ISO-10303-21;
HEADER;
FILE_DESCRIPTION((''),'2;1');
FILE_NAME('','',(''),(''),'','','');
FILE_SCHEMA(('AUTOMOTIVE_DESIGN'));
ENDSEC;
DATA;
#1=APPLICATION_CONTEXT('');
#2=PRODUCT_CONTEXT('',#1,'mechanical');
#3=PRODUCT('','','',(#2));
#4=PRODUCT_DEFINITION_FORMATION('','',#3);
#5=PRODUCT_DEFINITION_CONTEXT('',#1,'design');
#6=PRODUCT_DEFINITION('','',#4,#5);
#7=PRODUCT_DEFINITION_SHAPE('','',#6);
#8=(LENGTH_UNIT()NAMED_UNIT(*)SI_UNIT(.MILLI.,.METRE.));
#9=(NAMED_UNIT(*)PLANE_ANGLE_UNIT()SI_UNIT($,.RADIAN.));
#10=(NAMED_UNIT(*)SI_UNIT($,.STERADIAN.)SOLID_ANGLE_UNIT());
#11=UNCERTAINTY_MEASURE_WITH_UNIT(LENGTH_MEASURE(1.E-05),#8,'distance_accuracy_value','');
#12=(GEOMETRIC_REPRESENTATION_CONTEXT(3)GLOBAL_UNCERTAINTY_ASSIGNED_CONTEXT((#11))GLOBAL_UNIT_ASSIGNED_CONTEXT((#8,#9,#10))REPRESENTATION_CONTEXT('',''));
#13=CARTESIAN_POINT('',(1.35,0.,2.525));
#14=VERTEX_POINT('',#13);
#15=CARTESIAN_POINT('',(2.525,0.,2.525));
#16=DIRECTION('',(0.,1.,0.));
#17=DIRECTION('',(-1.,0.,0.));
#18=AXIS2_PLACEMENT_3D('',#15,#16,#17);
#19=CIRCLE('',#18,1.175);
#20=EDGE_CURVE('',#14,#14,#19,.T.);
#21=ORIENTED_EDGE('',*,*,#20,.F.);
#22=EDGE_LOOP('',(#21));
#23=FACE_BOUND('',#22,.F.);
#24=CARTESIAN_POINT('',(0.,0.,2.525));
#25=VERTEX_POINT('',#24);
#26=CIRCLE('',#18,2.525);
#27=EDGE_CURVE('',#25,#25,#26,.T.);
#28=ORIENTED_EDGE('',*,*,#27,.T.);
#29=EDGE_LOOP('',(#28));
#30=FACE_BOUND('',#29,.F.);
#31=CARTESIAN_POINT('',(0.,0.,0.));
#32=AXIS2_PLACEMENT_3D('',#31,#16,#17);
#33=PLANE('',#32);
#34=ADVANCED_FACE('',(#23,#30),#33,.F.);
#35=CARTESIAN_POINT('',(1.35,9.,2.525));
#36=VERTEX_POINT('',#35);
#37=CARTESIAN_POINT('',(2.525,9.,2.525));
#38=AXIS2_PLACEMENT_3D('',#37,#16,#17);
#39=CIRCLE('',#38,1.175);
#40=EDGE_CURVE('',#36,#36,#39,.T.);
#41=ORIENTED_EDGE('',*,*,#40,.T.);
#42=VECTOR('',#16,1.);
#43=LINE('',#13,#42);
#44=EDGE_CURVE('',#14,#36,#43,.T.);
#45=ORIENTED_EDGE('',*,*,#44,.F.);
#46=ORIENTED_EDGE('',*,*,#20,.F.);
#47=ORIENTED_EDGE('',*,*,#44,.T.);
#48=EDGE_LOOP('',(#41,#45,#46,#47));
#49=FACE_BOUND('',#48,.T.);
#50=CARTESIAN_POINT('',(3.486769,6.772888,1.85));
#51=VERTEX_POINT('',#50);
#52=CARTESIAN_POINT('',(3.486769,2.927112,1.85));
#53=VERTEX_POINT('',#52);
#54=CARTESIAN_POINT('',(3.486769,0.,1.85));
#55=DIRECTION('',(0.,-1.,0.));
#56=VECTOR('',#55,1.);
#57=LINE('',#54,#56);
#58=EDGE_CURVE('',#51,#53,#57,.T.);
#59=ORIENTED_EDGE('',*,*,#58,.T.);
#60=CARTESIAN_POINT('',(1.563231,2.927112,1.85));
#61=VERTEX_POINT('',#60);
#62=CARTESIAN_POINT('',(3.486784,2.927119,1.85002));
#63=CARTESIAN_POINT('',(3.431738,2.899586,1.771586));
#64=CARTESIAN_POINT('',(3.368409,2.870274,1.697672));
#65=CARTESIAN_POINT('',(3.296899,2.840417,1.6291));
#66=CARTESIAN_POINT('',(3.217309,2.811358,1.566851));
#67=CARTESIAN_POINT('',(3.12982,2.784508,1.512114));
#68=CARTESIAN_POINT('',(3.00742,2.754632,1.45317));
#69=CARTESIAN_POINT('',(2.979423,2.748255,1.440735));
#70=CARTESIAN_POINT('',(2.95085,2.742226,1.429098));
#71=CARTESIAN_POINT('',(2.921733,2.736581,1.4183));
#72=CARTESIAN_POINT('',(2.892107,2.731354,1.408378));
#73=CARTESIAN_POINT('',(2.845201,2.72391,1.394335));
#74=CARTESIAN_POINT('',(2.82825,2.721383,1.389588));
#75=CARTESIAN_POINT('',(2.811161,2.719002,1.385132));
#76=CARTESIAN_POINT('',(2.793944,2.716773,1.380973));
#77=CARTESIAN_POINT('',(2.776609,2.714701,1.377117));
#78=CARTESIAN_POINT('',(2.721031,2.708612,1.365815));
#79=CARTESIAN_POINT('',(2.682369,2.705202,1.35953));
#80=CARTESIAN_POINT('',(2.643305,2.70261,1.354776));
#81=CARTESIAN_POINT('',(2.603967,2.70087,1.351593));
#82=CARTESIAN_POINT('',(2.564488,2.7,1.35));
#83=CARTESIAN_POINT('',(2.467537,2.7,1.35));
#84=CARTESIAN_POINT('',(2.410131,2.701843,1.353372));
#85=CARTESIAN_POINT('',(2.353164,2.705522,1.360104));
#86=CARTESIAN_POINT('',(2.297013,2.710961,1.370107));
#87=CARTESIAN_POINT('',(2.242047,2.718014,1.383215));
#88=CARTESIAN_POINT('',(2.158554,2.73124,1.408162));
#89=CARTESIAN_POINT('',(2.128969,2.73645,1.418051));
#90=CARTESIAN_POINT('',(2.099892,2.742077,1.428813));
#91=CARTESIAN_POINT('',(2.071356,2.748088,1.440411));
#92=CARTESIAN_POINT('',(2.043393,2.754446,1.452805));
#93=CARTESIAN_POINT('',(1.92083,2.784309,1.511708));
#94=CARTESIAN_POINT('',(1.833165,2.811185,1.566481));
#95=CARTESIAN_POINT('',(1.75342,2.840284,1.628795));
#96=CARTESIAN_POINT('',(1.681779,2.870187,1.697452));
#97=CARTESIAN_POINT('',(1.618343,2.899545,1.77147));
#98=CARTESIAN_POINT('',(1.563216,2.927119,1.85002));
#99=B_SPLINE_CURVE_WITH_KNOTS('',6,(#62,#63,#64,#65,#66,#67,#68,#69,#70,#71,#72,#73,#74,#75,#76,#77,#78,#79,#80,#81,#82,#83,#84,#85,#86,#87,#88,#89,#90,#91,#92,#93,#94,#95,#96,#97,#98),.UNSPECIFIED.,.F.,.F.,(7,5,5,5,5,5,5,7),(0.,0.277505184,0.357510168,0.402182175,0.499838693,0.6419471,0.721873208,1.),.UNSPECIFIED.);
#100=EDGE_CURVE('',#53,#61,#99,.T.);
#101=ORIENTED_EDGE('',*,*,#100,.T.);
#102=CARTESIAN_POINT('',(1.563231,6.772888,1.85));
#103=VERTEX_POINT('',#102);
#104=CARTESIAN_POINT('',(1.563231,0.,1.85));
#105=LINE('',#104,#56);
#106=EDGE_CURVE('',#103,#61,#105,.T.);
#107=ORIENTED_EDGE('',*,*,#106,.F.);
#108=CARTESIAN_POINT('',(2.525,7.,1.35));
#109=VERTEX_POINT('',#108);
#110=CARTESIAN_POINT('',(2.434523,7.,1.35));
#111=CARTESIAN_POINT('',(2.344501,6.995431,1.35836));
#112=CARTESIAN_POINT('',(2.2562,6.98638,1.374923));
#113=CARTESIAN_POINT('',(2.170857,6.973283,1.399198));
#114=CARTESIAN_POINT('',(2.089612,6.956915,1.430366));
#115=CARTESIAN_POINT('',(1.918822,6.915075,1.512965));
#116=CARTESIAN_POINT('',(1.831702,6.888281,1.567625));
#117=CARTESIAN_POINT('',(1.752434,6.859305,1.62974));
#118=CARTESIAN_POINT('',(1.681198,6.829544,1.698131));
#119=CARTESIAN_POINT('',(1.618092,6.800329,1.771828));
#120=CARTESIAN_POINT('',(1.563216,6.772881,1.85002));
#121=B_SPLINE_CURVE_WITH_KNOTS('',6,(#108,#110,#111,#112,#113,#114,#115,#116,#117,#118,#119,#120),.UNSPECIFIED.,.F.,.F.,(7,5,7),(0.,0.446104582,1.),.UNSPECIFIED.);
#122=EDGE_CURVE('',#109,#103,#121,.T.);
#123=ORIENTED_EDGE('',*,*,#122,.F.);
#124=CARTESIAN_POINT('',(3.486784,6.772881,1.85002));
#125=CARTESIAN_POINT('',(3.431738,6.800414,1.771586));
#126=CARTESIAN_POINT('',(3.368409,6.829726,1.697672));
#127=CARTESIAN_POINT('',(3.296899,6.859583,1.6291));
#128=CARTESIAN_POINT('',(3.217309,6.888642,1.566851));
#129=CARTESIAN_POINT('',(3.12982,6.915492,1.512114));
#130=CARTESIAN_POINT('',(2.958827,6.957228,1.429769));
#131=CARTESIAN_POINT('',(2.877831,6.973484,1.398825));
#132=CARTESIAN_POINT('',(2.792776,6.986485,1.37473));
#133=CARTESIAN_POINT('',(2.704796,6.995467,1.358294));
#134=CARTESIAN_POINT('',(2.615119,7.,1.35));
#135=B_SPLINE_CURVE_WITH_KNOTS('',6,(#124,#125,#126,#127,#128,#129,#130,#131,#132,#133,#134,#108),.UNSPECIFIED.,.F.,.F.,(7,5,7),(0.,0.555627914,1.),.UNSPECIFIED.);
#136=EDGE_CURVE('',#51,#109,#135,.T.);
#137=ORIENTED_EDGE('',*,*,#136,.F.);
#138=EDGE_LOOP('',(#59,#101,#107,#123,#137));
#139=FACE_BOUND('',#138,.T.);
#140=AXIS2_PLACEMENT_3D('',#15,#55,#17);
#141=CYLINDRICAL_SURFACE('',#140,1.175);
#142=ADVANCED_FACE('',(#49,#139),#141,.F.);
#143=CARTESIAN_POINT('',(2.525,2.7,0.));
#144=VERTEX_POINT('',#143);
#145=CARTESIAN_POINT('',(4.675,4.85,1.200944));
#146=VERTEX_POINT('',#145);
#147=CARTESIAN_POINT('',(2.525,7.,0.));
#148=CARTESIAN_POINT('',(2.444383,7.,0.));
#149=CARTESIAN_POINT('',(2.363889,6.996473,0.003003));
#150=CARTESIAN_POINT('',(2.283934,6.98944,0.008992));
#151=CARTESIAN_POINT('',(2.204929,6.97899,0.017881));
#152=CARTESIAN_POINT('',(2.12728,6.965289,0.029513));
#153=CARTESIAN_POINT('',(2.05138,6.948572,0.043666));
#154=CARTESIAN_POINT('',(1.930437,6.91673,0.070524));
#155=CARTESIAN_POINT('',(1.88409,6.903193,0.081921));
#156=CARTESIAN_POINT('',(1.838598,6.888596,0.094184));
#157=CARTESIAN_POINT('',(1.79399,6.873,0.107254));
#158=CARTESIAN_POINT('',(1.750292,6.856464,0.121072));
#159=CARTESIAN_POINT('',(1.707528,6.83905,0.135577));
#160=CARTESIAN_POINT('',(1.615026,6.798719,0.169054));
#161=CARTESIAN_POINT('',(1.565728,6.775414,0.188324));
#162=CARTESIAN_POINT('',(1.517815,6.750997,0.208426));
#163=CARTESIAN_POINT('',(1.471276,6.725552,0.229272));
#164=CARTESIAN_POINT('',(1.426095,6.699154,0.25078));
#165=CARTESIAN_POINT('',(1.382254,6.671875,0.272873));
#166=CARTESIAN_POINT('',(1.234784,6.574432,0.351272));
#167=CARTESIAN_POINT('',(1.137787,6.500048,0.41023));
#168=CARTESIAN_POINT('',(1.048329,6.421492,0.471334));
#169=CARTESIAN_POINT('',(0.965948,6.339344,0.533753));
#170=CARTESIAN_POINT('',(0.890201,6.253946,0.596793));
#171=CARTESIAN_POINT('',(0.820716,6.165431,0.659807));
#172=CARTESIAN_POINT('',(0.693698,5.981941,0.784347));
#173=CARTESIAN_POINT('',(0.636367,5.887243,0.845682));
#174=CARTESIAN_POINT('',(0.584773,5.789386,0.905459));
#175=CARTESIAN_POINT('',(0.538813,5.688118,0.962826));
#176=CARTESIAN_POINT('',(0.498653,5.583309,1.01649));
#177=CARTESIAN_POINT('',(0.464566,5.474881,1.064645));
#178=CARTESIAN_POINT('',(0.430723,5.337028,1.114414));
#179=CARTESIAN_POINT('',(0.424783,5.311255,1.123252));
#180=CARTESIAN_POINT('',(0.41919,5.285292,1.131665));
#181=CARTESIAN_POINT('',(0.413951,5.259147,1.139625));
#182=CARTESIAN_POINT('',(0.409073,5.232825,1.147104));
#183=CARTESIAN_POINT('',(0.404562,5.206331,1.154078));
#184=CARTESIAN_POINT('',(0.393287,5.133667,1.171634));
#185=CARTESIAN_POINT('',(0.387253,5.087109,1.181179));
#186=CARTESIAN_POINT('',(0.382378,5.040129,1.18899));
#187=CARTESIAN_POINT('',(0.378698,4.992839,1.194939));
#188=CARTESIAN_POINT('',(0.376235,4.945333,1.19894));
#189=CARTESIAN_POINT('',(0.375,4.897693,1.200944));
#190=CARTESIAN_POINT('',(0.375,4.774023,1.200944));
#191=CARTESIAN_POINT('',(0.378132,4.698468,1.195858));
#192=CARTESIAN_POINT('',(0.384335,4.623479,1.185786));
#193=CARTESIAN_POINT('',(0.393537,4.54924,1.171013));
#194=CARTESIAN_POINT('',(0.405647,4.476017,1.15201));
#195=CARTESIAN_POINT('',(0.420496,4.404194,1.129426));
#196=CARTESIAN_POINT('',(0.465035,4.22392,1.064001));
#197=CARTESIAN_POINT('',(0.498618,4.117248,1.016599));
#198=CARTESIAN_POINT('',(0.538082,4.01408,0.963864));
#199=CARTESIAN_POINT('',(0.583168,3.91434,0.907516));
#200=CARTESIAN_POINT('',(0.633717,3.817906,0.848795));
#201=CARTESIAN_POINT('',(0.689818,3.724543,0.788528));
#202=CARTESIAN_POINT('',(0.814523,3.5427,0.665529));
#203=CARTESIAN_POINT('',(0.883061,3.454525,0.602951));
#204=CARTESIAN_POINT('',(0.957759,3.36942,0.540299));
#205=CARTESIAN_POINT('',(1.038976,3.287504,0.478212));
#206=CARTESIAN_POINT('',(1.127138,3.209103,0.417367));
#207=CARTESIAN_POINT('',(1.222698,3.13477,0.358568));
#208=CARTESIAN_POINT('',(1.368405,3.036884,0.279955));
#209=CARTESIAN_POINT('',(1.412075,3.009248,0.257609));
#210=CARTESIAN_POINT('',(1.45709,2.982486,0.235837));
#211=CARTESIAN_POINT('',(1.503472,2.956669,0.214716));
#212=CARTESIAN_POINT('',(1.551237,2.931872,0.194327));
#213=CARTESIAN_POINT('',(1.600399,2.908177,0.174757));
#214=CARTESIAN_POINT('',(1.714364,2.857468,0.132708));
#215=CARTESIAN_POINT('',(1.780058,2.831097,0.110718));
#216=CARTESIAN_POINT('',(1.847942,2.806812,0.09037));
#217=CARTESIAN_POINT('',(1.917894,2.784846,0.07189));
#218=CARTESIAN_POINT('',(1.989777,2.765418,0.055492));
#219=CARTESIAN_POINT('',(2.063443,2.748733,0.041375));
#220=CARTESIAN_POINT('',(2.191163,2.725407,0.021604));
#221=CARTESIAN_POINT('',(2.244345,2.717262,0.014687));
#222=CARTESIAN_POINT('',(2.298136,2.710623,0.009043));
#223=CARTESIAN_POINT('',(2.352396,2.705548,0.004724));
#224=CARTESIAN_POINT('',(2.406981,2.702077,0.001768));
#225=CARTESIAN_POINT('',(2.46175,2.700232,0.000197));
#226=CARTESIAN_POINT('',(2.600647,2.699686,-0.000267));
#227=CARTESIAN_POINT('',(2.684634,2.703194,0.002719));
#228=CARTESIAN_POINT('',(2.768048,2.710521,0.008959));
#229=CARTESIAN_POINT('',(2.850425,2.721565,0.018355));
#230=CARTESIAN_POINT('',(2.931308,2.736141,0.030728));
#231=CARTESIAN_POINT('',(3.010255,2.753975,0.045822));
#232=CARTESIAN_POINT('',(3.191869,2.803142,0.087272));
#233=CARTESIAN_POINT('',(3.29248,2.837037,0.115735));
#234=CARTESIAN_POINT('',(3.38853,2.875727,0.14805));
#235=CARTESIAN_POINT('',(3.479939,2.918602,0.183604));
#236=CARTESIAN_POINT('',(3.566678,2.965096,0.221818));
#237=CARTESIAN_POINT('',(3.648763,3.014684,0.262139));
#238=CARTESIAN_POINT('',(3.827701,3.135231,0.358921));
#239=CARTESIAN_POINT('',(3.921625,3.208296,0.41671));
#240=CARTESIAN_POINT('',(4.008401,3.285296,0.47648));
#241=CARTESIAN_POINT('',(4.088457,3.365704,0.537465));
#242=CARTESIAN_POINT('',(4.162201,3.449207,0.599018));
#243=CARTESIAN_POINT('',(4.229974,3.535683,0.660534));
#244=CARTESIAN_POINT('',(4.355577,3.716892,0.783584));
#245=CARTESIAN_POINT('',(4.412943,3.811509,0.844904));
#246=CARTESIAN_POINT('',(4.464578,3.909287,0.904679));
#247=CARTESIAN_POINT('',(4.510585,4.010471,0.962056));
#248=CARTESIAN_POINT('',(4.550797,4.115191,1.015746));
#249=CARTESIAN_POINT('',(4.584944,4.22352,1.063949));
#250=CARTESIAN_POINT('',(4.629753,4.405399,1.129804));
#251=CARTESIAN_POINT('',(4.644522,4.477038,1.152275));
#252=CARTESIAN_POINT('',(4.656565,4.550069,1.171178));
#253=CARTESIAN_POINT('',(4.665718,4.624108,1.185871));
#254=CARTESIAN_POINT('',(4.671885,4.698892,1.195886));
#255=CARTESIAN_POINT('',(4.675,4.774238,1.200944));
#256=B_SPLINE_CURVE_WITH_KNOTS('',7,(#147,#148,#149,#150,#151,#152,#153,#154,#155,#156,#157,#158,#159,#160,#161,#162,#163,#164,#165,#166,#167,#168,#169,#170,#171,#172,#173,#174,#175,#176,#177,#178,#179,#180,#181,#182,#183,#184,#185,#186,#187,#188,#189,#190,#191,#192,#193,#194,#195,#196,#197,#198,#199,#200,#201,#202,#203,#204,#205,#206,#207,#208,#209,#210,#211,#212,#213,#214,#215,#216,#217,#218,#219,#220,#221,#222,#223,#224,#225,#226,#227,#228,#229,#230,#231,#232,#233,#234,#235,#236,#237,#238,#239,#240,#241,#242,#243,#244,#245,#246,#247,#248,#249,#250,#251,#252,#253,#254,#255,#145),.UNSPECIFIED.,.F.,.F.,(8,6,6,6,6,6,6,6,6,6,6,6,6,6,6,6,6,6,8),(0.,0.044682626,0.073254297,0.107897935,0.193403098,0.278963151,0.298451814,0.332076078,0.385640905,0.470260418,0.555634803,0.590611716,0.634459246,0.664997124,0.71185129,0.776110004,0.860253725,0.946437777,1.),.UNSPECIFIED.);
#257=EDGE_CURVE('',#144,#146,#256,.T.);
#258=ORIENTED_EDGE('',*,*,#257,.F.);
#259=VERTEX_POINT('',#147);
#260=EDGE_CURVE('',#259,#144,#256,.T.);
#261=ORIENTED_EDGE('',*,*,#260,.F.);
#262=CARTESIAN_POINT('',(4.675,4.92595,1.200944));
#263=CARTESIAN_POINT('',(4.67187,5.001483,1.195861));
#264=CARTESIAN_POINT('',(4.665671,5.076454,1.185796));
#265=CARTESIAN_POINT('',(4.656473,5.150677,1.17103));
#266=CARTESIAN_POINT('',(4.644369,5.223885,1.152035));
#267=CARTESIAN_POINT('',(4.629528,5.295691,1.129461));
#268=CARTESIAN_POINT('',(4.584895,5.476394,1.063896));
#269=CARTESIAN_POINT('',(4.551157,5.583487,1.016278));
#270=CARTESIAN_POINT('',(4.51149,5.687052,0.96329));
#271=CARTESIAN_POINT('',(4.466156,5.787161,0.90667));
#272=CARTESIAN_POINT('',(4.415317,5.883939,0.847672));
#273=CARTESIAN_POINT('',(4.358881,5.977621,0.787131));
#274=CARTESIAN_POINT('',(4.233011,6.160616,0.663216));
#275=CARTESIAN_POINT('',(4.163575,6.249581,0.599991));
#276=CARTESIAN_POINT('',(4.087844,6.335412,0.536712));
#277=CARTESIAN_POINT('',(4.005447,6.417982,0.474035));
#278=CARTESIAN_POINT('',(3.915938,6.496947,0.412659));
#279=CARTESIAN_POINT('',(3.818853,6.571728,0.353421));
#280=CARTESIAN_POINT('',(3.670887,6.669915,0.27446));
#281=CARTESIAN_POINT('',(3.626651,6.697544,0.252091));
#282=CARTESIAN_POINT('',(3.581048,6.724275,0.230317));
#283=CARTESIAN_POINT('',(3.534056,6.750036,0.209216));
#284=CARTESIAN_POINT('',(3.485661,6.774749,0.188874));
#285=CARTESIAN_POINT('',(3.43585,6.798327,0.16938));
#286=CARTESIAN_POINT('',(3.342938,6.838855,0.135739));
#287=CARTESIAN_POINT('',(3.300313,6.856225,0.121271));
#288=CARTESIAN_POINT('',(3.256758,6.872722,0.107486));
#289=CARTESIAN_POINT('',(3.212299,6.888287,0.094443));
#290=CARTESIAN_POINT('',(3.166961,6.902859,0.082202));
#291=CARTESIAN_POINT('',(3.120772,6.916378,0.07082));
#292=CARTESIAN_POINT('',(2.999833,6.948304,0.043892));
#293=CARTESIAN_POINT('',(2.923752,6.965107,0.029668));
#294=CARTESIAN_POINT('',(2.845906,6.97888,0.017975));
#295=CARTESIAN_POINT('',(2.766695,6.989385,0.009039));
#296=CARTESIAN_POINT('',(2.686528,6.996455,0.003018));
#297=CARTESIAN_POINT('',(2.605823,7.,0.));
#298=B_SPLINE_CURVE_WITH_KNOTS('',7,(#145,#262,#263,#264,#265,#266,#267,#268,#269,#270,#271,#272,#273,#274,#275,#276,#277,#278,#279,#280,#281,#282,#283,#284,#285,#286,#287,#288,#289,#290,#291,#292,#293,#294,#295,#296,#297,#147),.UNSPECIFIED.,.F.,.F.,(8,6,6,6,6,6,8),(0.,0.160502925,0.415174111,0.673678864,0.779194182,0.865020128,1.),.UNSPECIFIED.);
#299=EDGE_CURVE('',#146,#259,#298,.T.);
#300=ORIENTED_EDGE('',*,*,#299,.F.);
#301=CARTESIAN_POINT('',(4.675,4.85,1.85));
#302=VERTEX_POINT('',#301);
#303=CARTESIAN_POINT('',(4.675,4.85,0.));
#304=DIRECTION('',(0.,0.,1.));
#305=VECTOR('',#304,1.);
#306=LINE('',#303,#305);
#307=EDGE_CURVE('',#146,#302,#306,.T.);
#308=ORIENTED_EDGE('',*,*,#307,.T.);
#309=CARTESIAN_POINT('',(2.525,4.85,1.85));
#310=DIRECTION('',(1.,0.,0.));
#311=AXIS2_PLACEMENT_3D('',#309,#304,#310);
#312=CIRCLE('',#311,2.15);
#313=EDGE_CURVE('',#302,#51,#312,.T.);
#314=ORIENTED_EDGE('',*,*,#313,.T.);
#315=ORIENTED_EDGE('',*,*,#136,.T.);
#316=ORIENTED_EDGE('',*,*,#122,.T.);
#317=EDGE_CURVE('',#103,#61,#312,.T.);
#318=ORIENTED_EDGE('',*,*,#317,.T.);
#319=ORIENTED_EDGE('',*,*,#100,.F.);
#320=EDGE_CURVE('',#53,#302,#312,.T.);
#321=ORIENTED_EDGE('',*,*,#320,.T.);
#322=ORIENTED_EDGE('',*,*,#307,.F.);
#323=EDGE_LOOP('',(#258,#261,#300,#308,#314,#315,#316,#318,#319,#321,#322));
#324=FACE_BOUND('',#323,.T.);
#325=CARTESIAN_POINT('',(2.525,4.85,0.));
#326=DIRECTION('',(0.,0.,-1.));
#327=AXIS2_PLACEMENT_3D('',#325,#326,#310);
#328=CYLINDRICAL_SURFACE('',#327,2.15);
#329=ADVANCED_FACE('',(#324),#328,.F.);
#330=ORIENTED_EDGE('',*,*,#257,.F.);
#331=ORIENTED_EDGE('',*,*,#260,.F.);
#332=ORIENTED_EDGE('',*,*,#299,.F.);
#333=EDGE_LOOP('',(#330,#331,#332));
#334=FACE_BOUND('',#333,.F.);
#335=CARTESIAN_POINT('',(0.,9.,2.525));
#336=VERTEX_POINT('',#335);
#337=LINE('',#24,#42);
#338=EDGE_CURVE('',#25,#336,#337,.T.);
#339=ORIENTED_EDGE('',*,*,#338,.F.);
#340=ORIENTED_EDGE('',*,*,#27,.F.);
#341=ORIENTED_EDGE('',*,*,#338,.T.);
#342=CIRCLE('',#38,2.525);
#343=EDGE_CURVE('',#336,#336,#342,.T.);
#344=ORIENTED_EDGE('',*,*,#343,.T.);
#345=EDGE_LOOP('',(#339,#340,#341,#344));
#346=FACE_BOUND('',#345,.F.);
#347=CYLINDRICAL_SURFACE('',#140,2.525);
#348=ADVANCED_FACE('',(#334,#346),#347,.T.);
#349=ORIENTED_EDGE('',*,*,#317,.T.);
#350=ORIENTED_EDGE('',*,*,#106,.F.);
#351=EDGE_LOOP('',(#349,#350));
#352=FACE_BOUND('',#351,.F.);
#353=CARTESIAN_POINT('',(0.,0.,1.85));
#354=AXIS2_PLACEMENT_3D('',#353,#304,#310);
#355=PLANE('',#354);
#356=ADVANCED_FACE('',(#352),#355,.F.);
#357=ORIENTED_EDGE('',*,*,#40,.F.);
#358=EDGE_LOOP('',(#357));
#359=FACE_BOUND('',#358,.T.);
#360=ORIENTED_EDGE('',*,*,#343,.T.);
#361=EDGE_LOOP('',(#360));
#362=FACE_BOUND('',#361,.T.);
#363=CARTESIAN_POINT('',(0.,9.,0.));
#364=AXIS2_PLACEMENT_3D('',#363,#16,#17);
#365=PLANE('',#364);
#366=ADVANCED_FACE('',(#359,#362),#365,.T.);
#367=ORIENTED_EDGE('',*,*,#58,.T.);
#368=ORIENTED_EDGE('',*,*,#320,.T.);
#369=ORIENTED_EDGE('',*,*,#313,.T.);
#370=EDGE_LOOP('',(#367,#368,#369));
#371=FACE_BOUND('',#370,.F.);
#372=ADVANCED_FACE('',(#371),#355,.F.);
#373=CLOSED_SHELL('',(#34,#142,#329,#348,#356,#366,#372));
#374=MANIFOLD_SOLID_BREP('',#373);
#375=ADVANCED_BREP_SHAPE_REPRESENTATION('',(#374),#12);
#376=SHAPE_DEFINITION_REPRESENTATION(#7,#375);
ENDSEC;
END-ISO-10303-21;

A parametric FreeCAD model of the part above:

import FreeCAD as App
import Part
import Sketcher

V = App.Vector

doc = App.newDocument("Part")
params = doc.addObject("Spreadsheet::Sheet", "Params")
for row, (alias, value) in enumerate([
    ("sketch1_diameter", "5.05 mm"),
    ("sketch1_diameter2", "2.35 mm"),
    ("pad1_length", "9 mm"),
    ("sketch2_diameter", "4.3 mm"),
    ("pocket1_length", "1.85 mm"),
], start=1):
    params.set(f"A{row}", alias)
    params.set(f"B{row}", "=" + value)
    params.setAlias(f"B{row}", alias)

body = doc.addObject("PartDesign::Body", "Body")

# Sketch on XZ plane
sketch1 = body.newObject("Sketcher::SketchObject", "Sketch")
sketch1.AttachmentSupport = (doc.getObject("XZ_Plane"), [""])
sketch1.MapMode = "FlatFace"
sketch1.addGeometry(Part.Circle(V(2.525, 2.525, 0), V(0, 0, 1), 2.525), False)
sketch1.addGeometry(Part.Circle(V(2.525, 2.525, 0), V(0, 0, 1), 1.175), False)
sketch1.addConstraint(Sketcher.Constraint("Coincident", 1, 3, 0, 3))
sketch1.addConstraint(Sketcher.Constraint("Diameter", 0, 5.05))
sketch1.addConstraint(Sketcher.Constraint("Diameter", 1, 2.35))
sketch1.addConstraint(Sketcher.Constraint("DistanceX", -1, 1, 0, 3, 2.525))
sketch1.addConstraint(Sketcher.Constraint("DistanceY", -1, 1, 0, 3, 2.525))
sketch1.setExpression("Constraints[1]", "Params.sketch1_diameter")
sketch1.setExpression("Constraints[2]", "Params.sketch1_diameter2")
pad1 = body.newObject("PartDesign::Pad", "Pad")
pad1.Profile = sketch1
pad1.setExpression("Length", "Params.pad1_length")
pad1.Reversed = True

# Sketch on XY plane
sketch2 = body.newObject("Sketcher::SketchObject", "Sketch001")
sketch2.AttachmentSupport = (doc.getObject("XY_Plane"), [""])
sketch2.MapMode = "FlatFace"
sketch2.addGeometry(Part.Circle(V(2.525, 4.85, 0), V(0, 0, 1), 2.15), False)
sketch2.addConstraint(Sketcher.Constraint("Diameter", 0, 4.3))
sketch2.addConstraint(Sketcher.Constraint("DistanceX", -1, 1, 0, 3, 2.525))
sketch2.addConstraint(Sketcher.Constraint("DistanceY", -1, 1, 0, 3, 4.85))
sketch2.setExpression("Constraints[0]", "Params.sketch2_diameter")
pocket1 = body.newObject("PartDesign::Pocket", "Pocket")
pocket1.Profile = sketch2
pocket1.setExpression("Length", "Params.pocket1_length")
pocket1.Reversed = True

doc.recompute()
